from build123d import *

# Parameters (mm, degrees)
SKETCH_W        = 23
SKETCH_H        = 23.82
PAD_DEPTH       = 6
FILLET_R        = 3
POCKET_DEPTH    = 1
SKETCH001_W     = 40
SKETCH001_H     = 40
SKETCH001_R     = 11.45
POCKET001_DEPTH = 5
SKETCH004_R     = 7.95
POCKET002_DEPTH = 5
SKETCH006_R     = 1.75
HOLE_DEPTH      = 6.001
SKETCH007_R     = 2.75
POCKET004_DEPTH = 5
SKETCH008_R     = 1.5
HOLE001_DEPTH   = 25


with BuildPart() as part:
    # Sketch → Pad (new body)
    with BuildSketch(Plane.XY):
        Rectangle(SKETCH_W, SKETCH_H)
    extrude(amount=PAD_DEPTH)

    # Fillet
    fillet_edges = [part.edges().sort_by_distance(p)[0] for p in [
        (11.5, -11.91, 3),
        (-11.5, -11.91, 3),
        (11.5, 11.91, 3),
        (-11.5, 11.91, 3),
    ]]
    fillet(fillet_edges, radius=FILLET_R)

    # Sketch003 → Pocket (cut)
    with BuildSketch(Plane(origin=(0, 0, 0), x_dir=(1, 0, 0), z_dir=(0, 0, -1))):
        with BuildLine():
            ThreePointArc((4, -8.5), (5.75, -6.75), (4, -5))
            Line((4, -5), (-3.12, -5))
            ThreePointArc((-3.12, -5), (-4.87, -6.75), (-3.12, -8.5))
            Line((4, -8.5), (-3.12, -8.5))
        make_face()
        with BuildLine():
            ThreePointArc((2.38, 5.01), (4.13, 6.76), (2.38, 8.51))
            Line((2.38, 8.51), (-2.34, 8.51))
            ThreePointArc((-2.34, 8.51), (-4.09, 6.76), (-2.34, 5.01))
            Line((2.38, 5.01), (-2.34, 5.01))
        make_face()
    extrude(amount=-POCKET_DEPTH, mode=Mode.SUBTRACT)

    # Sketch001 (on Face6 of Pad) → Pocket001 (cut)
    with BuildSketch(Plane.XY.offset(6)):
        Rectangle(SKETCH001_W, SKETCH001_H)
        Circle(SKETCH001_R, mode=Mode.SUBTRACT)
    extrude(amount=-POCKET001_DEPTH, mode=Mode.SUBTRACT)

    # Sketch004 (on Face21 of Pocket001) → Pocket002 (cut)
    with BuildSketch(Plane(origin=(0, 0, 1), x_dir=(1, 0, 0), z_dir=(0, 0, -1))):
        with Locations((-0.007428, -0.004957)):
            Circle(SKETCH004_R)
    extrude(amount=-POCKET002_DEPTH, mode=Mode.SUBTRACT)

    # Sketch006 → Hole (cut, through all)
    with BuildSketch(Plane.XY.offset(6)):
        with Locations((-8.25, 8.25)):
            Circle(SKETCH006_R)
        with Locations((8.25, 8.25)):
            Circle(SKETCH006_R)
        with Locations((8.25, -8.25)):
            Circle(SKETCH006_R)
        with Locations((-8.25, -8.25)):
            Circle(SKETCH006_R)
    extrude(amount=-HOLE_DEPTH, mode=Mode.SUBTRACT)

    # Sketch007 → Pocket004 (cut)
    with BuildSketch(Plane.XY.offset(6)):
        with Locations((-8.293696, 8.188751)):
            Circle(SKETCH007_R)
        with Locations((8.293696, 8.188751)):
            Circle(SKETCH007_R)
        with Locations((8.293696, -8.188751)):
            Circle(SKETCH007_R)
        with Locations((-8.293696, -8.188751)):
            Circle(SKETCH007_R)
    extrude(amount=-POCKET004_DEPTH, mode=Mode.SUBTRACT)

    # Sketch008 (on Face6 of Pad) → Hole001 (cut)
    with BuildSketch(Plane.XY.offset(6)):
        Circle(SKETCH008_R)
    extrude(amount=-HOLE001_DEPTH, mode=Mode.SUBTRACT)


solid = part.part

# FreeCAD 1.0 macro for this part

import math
import FreeCAD as App
import Part
import Sketcher

V = App.Vector


def edges_at(feature, points):
    """Names of the edges that pass closest to the given points."""
    edges = feature.Shape.Edges
    near = lambda p: min(range(len(edges)), key=lambda i: edges[i].distToShape(Part.Vertex(*p))[0])
    return sorted({f"Edge{near(p) + 1}" for p in points})


def add_polygon(sketch, points):
    """Adds a closed chain of lines whose ends are joined by coincident constraints."""
    first, n = sketch.GeometryCount, len(points)
    for a, b in zip(points, points[1:] + points[:1]):
        sketch.addGeometry(Part.LineSegment(App.Vector(*a, 0), App.Vector(*b, 0)), False)
    for i in range(n):
        sketch.addConstraint(Sketcher.Constraint("Coincident", first + i, 2, first + (i + 1) % n, 1))

doc = App.newDocument("Part")
body = doc.addObject("PartDesign::Body", "Body")

# Sketch on XY plane
sketch1 = body.newObject("Sketcher::SketchObject", "Sketch")
sketch1.AttachmentSupport = (doc.getObject("XY_Plane"), [""])
sketch1.MapMode = "FlatFace"
add_polygon(sketch1, [(-11.5, 11.91), (-11.5, -11.91), (11.5, -11.91), (11.5, 11.91)])  # lines 0-3
sketch1.addConstraint(Sketcher.Constraint("Vertical", 0))
sketch1.addConstraint(Sketcher.Constraint("Horizontal", 1))
sketch1.addConstraint(Sketcher.Constraint("Vertical", 2))
sketch1.addConstraint(Sketcher.Constraint("Horizontal", 3))
sketch1.addConstraint(Sketcher.Constraint("Symmetric", 0, 2, 2, 2, -1, 1))
sketch1.addConstraint(Sketcher.Constraint("DistanceX", 1, 1, 1, 2, 23.0))
sketch1.addConstraint(Sketcher.Constraint("DistanceY", 0, 2, 0, 1, 23.82))
pad1 = body.newObject("PartDesign::Pad", "Pad")
pad1.Profile = sketch1
pad1.Length = 6
doc.recompute()

fillet = body.newObject("PartDesign::Fillet", "Fillet")
fillet.Base = (pad1, edges_at(pad1, [
    (11.5, -11.91, 3),
    (-11.5, -11.91, 3),
    (11.5, 11.91, 3),
    (-11.5, 11.91, 3),
]))
fillet.Radius = 3

# Sketch on XY plane
sketch2 = body.newObject("Sketcher::SketchObject", "Sketch001")
sketch2.AttachmentSupport = (doc.getObject("XY_Plane"), [""])
sketch2.MapMode = "FlatFace"
sketch2.addGeometry(Part.ArcOfCircle(Part.Circle(V(4, 6.75, 0), V(0, 0, 1), 1.75), math.radians(-90), math.radians(90)), False)
sketch2.addGeometry(Part.LineSegment(V(4, 5, 0), V(-3.12, 5, 0)), False)
sketch2.addGeometry(Part.ArcOfCircle(Part.Circle(V(-3.12, 6.75, 0), V(0, 0, 1), 1.75), math.radians(90), math.radians(270)), False)
sketch2.addGeometry(Part.LineSegment(V(-3.12, 8.5, 0), V(4, 8.5, 0)), False)
sketch2.addGeometry(Part.ArcOfCircle(Part.Circle(V(2.38, -6.76, 0), V(0, 0, 1), 1.75), math.radians(-90), math.radians(90)), False)
sketch2.addGeometry(Part.LineSegment(V(2.38, -8.51, 0), V(-2.34, -8.51, 0)), False)
sketch2.addGeometry(Part.ArcOfCircle(Part.Circle(V(-2.34, -6.76, 0), V(0, 0, 1), 1.75), math.radians(90), math.radians(270)), False)
sketch2.addGeometry(Part.LineSegment(V(-2.34, -5.01, 0), V(2.38, -5.01, 0)), False)
sketch2.addConstraint(Sketcher.Constraint("Tangent", 0, 1, 1, 1))
sketch2.addConstraint(Sketcher.Constraint("Tangent", 1, 2, 2, 2))
sketch2.addConstraint(Sketcher.Constraint("Tangent", 2, 1, 3, 1))
sketch2.addConstraint(Sketcher.Constraint("Tangent", 3, 2, 0, 2))
sketch2.addConstraint(Sketcher.Constraint("Tangent", 4, 1, 5, 1))
sketch2.addConstraint(Sketcher.Constraint("Tangent", 5, 2, 6, 2))
sketch2.addConstraint(Sketcher.Constraint("Tangent", 6, 1, 7, 1))
sketch2.addConstraint(Sketcher.Constraint("Tangent", 7, 2, 4, 2))
sketch2.addConstraint(Sketcher.Constraint("Horizontal", 1))
sketch2.addConstraint(Sketcher.Constraint("Horizontal", 3))
sketch2.addConstraint(Sketcher.Constraint("Horizontal", 5))
sketch2.addConstraint(Sketcher.Constraint("Horizontal", 7))
sketch2.addConstraint(Sketcher.Constraint("Equal", 2, 4))
sketch2.addConstraint(Sketcher.Constraint("Radius", 0, 1.75))
sketch2.addConstraint(Sketcher.Constraint("DistanceX", -1, 1, 0, 3, 4.0))
sketch2.addConstraint(Sketcher.Constraint("DistanceY", -1, 1, 0, 1, 5.0))
sketch2.addConstraint(Sketcher.Constraint("DistanceX", 1, 2, 1, 1, 7.12))
sketch2.addConstraint(Sketcher.Constraint("DistanceX", 5, 2, 5, 1, 4.72))
sketch2.addConstraint(Sketcher.Constraint("DistanceX", 2, 3, 4, 3, 5.5))
sketch2.addConstraint(Sketcher.Constraint("DistanceY", 4, 3, -1, 1, 6.76))
pocket1 = body.newObject("PartDesign::Pocket", "Pocket")
pocket1.Profile = sketch2
pocket1.Length = 1
pocket1.Reversed = True

# Sketch on XY plane
sketch3 = body.newObject("Sketcher::SketchObject", "Sketch002")
sketch3.AttachmentSupport = (doc.getObject("XY_Plane"), [""])
sketch3.MapMode = "FlatFace"
sketch3.AttachmentOffset = App.Placement(V(0, 0, 6), App.Rotation())
add_polygon(sketch3, [(-20, 20), (-20, -20), (20, -20), (20, 20)])  # lines 0-3
sketch3.addGeometry(Part.Circle(V(0, 0, 0), V(0, 0, 1), 11.45), False)  # 4
sketch3.addConstraint(Sketcher.Constraint("Vertical", 0))
sketch3.addConstraint(Sketcher.Constraint("Horizontal", 1))
sketch3.addConstraint(Sketcher.Constraint("Vertical", 2))
sketch3.addConstraint(Sketcher.Constraint("Horizontal", 3))
sketch3.addConstraint(Sketcher.Constraint("Coincident", 4, 3, -1, 1))
sketch3.addConstraint(Sketcher.Constraint("Symmetric", 0, 2, 2, 2, -1, 1))
sketch3.addConstraint(Sketcher.Constraint("Equal", 3, 0))
sketch3.addConstraint(Sketcher.Constraint("Diameter", 4, 22.9))
sketch3.addConstraint(Sketcher.Constraint("DistanceX", 1, 1, 1, 2, 40.0))
pocket2 = body.newObject("PartDesign::Pocket", "Pocket001")
pocket2.Profile = sketch3
pocket2.Length = 5

# Sketch on XY plane
sketch4 = body.newObject("Sketcher::SketchObject", "Sketch003")
sketch4.AttachmentSupport = (doc.getObject("XY_Plane"), [""])
sketch4.MapMode = "FlatFace"
sketch4.AttachmentOffset = App.Placement(V(0, 0, 1), App.Rotation())
sketch4.addGeometry(Part.Circle(V(-0.007428, 0.004957, 0), V(0, 0, 1), 7.95), False)
sketch4.addConstraint(Sketcher.Constraint("Diameter", 0, 15.9))
sketch4.addConstraint(Sketcher.Constraint("DistanceX", 0, 3, -1, 1, 0.007428))
sketch4.addConstraint(Sketcher.Constraint("DistanceY", -1, 1, 0, 3, 0.004957))
pocket3 = body.newObject("PartDesign::Pocket", "Pocket002")
pocket3.Profile = sketch4
pocket3.Length = 5
pocket3.Reversed = True

# Sketch on XY plane
sketch5 = body.newObject("Sketcher::SketchObject", "Sketch004")
sketch5.AttachmentSupport = (doc.getObject("XY_Plane"), [""])
sketch5.MapMode = "FlatFace"
sketch5.AttachmentOffset = App.Placement(V(0, 0, 6), App.Rotation())
sketch5.addGeometry(Part.Circle(V(-8.25, 8.25, 0), V(0, 0, 1), 1.75), False)
sketch5.addGeometry(Part.Circle(V(8.25, 8.25, 0), V(0, 0, 1), 1.75), False)
sketch5.addGeometry(Part.Circle(V(8.25, -8.25, 0), V(0, 0, 1), 1.75), False)
sketch5.addGeometry(Part.Circle(V(-8.25, -8.25, 0), V(0, 0, 1), 1.75), False)
sketch5.addConstraint(Sketcher.Constraint("Equal", 0, 1))
sketch5.addConstraint(Sketcher.Constraint("Equal", 1, 2))
sketch5.addConstraint(Sketcher.Constraint("Equal", 2, 3))
sketch5.addConstraint(Sketcher.Constraint("Symmetric", 0, 3, 2, 3, -1, 1))
sketch5.addConstraint(Sketcher.Constraint("Symmetric", 1, 3, 3, 3, -1, 1))
sketch5.addConstraint(Sketcher.Constraint("Symmetric", 0, 3, 1, 3, -2))
sketch5.addConstraint(Sketcher.Constraint("Diameter", 0, 3.5))
sketch5.addConstraint(Sketcher.Constraint("DistanceX", 0, 3, 1, 3, 16.5))
sketch5.addConstraint(Sketcher.Constraint("DistanceY", 2, 3, 1, 3, 16.5))
pocket4 = body.newObject("PartDesign::Pocket", "Pocket003")
pocket4.Profile = sketch5
pocket4.Type = "ThroughAll"

# Sketch on XY plane
sketch6 = body.newObject("Sketcher::SketchObject", "Sketch005")
sketch6.AttachmentSupport = (doc.getObject("XY_Plane"), [""])
sketch6.MapMode = "FlatFace"
sketch6.AttachmentOffset = App.Placement(V(0, 0, 6), App.Rotation())
sketch6.addGeometry(Part.Circle(V(-8.293696, 8.188751, 0), V(0, 0, 1), 2.75), False)
sketch6.addGeometry(Part.Circle(V(8.293696, 8.188751, 0), V(0, 0, 1), 2.75), False)
sketch6.addGeometry(Part.Circle(V(8.293696, -8.188751, 0), V(0, 0, 1), 2.75), False)
sketch6.addGeometry(Part.Circle(V(-8.293696, -8.188751, 0), V(0, 0, 1), 2.75), False)
sketch6.addConstraint(Sketcher.Constraint("Equal", 0, 1))
sketch6.addConstraint(Sketcher.Constraint("Equal", 1, 2))
sketch6.addConstraint(Sketcher.Constraint("Equal", 2, 3))
sketch6.addConstraint(Sketcher.Constraint("Symmetric", 0, 3, 2, 3, -1, 1))
sketch6.addConstraint(Sketcher.Constraint("Symmetric", 1, 3, 3, 3, -1, 1))
sketch6.addConstraint(Sketcher.Constraint("Symmetric", 0, 3, 1, 3, -2))
sketch6.addConstraint(Sketcher.Constraint("Diameter", 0, 5.5))
sketch6.addConstraint(Sketcher.Constraint("DistanceY", 2, 3, 1, 3, 16.377502))
sketch6.addConstraint(Sketcher.Constraint("DistanceX", 0, 3, -1, 1, 8.293696))
pocket5 = body.newObject("PartDesign::Pocket", "Pocket004")
pocket5.Profile = sketch6
pocket5.Length = 5

# Sketch on XY plane
sketch7 = body.newObject("Sketcher::SketchObject", "Sketch006")
sketch7.AttachmentSupport = (doc.getObject("XY_Plane"), [""])
sketch7.MapMode = "FlatFace"
sketch7.AttachmentOffset = App.Placement(V(0, 0, 6), App.Rotation())
sketch7.addGeometry(Part.Circle(V(0, 0, 0), V(0, 0, 1), 1.5), False)
sketch7.addConstraint(Sketcher.Constraint("Coincident", 0, 3, -1, 1))
sketch7.addConstraint(Sketcher.Constraint("Diameter", 0, 3.0))
pocket6 = body.newObject("PartDesign::Pocket", "Pocket005")
pocket6.Profile = sketch7
pocket6.Length = 25

doc.recompute()
